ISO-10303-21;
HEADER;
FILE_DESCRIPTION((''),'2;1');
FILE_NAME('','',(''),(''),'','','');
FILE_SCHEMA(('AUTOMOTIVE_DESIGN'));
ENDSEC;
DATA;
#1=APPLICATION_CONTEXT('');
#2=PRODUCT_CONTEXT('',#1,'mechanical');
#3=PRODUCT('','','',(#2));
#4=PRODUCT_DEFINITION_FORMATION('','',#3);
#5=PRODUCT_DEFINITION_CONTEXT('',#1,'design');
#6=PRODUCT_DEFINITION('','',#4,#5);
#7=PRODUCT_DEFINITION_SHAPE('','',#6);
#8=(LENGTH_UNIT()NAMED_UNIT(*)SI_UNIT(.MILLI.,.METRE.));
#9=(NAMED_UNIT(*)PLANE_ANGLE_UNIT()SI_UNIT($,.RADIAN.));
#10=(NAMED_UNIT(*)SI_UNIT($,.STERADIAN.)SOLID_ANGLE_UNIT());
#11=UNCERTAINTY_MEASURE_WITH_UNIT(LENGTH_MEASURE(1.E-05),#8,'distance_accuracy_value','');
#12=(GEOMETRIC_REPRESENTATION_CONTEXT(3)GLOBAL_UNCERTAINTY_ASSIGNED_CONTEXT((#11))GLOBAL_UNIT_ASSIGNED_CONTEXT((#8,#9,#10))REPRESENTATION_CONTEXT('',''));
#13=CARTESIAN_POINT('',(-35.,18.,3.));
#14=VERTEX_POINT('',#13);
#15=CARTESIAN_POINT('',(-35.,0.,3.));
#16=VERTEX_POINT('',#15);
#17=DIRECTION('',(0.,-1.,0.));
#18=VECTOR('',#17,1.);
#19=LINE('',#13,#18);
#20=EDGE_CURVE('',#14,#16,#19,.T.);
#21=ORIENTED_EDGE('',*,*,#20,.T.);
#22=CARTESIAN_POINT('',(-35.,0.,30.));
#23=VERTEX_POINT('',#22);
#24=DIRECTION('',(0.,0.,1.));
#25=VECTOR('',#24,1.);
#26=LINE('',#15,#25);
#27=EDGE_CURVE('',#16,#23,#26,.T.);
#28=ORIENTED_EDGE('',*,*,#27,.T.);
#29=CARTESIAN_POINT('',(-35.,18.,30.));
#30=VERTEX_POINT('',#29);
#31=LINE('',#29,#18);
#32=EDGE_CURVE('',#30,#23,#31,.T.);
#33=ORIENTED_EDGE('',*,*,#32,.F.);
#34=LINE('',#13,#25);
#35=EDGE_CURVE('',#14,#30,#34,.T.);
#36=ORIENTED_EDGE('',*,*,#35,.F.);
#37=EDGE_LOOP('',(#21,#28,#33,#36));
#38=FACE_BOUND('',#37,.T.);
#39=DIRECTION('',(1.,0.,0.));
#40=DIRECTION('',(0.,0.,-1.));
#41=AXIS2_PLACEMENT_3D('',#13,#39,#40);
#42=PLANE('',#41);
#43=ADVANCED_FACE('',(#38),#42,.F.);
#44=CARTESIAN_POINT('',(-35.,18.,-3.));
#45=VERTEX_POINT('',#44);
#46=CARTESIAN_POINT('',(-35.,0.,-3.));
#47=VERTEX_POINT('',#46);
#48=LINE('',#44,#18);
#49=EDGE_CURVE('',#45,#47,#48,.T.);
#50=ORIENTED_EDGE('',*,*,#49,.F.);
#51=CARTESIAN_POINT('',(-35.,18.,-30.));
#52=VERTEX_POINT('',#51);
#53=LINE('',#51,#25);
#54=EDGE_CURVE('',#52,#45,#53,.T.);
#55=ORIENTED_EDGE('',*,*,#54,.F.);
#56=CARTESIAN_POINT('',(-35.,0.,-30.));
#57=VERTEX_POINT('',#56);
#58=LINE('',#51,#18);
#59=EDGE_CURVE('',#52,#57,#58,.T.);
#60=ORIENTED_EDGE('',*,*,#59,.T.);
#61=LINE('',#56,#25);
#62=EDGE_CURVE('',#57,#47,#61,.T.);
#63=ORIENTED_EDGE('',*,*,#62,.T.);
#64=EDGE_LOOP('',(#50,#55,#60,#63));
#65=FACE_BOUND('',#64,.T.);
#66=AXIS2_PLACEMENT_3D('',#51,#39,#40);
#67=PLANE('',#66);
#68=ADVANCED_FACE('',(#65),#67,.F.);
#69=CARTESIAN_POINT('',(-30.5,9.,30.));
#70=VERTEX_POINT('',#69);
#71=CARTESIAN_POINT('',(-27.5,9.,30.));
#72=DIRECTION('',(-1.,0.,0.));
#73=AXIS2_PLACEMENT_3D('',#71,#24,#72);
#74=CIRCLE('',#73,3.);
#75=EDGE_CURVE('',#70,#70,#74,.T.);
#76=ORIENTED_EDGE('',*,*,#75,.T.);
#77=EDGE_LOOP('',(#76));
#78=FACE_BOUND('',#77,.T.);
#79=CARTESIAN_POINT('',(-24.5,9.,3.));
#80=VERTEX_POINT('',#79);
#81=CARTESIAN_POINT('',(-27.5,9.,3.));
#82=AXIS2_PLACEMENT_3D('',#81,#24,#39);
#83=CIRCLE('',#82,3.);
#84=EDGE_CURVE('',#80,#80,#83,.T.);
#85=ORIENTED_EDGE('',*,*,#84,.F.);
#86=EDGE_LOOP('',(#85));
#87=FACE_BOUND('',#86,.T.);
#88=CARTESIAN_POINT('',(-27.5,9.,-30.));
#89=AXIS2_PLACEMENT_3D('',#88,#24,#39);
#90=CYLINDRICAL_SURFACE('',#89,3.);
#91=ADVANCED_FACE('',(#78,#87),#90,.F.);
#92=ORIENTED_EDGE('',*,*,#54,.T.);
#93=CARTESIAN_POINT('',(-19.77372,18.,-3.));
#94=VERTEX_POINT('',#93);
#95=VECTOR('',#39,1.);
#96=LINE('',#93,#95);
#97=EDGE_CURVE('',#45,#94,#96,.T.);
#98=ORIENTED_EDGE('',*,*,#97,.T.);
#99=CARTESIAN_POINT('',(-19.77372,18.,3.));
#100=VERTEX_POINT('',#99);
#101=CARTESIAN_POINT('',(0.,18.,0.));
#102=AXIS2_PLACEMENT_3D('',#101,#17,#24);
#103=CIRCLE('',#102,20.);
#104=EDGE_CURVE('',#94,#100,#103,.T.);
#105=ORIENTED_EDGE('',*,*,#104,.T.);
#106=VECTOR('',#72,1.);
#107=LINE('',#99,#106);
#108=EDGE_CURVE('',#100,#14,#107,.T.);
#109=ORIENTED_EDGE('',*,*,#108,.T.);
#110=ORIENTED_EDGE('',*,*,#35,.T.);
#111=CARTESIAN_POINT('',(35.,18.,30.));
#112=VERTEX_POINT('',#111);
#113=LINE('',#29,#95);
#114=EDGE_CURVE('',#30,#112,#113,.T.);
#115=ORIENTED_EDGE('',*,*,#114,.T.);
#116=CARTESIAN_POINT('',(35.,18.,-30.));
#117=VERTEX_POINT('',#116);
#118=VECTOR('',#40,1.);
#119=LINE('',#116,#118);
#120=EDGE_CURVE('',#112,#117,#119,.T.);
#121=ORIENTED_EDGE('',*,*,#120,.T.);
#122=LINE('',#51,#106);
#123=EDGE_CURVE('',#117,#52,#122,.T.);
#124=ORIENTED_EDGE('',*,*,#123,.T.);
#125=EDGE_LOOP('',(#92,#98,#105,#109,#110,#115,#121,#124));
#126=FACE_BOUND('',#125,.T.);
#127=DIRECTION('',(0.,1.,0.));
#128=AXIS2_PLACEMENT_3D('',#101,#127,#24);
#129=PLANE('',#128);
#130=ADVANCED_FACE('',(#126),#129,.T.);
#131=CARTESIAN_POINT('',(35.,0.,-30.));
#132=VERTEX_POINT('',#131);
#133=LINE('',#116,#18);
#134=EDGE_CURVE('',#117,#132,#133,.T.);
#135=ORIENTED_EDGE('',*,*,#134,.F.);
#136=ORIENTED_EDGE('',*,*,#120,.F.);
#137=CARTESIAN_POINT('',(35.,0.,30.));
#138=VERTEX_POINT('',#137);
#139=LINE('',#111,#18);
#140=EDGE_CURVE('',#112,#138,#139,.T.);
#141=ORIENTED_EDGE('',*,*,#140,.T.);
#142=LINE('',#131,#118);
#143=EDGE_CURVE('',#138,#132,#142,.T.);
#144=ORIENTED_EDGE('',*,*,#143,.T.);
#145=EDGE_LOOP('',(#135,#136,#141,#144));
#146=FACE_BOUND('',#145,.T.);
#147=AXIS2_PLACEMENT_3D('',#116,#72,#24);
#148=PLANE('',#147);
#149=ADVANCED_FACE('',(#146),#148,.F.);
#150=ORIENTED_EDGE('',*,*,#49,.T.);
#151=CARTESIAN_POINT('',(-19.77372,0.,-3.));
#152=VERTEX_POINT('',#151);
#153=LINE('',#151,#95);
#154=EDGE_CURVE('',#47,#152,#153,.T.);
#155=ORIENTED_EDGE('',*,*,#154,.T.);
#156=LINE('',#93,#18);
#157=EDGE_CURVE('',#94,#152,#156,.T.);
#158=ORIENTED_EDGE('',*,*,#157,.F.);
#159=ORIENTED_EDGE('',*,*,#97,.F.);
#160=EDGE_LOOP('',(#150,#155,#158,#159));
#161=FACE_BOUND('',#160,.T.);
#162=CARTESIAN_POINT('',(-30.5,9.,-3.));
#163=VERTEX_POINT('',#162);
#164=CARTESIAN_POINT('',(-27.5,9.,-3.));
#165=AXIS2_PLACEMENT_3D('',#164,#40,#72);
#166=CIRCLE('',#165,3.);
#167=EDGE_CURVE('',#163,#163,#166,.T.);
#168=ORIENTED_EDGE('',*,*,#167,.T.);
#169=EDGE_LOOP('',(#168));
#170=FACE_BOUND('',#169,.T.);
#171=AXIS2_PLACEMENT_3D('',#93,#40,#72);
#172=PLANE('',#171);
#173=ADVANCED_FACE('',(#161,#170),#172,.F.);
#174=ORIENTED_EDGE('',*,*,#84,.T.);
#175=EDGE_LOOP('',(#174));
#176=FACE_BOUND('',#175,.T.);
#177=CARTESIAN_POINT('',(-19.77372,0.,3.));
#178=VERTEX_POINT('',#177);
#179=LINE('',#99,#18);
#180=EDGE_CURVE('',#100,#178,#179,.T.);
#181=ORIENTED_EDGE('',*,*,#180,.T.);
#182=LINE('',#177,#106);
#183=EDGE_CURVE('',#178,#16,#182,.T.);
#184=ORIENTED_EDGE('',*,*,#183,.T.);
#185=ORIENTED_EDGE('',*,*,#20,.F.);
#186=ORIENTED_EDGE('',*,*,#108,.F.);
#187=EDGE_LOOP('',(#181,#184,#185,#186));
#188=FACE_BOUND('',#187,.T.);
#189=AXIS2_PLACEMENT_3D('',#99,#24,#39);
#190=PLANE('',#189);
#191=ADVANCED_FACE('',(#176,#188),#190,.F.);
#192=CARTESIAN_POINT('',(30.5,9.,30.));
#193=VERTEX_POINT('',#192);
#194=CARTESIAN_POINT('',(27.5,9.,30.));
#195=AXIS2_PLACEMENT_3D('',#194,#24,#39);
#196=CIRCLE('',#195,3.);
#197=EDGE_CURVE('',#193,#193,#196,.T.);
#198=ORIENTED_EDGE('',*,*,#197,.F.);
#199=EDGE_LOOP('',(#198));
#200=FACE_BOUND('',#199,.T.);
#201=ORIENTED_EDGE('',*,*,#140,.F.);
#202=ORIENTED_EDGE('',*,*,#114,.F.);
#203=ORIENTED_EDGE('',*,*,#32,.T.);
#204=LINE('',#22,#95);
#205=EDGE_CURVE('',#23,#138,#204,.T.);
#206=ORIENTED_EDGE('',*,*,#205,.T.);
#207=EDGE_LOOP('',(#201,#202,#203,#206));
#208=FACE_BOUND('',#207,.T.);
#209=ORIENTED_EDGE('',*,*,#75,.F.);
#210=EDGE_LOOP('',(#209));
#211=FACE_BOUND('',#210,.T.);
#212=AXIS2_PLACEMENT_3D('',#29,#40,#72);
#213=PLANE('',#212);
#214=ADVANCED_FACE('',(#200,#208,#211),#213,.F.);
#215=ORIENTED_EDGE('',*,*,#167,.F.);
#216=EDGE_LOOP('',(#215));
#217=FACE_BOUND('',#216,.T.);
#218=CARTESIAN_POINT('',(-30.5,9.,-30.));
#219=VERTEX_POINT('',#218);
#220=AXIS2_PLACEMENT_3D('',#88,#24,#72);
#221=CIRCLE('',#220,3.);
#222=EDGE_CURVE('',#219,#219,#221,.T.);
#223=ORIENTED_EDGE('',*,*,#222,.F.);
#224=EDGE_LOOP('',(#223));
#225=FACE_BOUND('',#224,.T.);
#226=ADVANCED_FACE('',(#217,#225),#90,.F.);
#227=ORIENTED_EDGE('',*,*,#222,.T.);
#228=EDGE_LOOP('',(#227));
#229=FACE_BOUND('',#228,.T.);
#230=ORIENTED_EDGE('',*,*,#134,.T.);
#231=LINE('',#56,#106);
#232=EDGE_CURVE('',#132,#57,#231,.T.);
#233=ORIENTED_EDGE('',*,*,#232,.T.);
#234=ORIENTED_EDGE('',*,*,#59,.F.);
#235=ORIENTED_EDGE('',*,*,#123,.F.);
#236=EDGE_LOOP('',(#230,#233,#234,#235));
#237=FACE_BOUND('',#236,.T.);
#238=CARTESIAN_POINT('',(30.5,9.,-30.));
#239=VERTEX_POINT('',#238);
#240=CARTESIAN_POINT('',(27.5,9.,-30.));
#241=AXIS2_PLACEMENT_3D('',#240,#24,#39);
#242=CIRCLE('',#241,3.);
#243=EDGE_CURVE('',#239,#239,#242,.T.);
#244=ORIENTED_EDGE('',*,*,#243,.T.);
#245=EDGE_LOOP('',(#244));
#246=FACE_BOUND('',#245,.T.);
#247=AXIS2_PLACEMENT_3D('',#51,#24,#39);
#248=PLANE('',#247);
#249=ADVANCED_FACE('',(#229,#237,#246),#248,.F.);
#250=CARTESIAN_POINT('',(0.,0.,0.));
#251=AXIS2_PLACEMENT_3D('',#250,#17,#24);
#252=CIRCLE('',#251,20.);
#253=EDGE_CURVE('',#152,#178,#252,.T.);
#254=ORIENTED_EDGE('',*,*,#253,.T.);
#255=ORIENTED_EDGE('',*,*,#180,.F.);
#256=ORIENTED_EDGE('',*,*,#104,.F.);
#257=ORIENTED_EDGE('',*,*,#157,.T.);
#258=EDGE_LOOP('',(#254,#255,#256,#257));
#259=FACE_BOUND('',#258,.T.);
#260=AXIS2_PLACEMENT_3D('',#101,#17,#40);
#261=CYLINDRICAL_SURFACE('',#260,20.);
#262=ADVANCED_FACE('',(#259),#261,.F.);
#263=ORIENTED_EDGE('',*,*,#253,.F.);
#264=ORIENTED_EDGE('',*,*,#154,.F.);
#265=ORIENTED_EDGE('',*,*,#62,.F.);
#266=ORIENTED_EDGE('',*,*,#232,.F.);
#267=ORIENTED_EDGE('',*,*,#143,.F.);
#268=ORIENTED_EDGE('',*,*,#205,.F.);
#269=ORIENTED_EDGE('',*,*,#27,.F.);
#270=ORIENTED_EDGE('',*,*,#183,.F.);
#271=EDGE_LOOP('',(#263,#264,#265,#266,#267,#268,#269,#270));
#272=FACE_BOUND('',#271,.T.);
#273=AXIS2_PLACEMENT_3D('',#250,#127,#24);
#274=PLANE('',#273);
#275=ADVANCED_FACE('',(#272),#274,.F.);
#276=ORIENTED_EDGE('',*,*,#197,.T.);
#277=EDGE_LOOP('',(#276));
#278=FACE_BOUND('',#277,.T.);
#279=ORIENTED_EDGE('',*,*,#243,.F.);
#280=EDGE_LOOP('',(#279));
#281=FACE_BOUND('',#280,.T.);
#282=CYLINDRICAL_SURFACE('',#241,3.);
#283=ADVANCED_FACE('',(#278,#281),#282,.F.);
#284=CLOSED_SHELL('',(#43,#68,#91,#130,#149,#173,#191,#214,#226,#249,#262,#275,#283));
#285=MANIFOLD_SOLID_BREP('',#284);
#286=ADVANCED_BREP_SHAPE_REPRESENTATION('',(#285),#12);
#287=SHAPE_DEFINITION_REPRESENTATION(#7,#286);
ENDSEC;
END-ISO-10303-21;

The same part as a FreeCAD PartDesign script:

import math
import FreeCAD as App
import Part
import Sketcher

doc = App.newDocument("Part")
body = doc.addObject("PartDesign::Body", "Body")

# Sketch on XZ plane
sketch1 = doc.addObject("Sketcher::SketchObject", "Sketch")
body.addObject(sketch1)
sketch1.AttachmentSupport = (doc.XZ_Plane, [""])
sketch1.MapMode = "FlatFace"
sketch1.addGeometry([
    Part.LineSegment(App.Vector(35, -30, 0), App.Vector(-35, -30, 0)),  # 0
    Part.LineSegment(App.Vector(-35, -30, 0), App.Vector(-35, -3, 0)),  # 1
    Part.LineSegment(App.Vector(-35, -3, 0), App.Vector(-19.77372, -3, 0)),  # 2
    Part.ArcOfCircle(Part.Circle(App.Vector(0, 0, 0), App.Vector(0, 0, 1), 20), math.radians(-171.373073), math.radians(171.373073)),  # 3
    Part.LineSegment(App.Vector(-19.77372, 3, 0), App.Vector(-35, 3, 0)),  # 4
    Part.LineSegment(App.Vector(-35, 3, 0), App.Vector(-35, 30, 0)),  # 5
    Part.LineSegment(App.Vector(-35, 30, 0), App.Vector(35, 30, 0)),  # 6
    Part.LineSegment(App.Vector(35, 30, 0), App.Vector(35, -30, 0)),  # 7
], False)
sketch1.addConstraint([
    Sketcher.Constraint("Coincident", 0, 2, 1, 1),
    Sketcher.Constraint("Coincident", 1, 2, 2, 1),
    Sketcher.Constraint("Coincident", 2, 2, 3, 1),
    Sketcher.Constraint("Coincident", 3, 2, 4, 1),
    Sketcher.Constraint("Coincident", 4, 2, 5, 1),
    Sketcher.Constraint("Coincident", 5, 2, 6, 1),
    Sketcher.Constraint("Coincident", 6, 2, 7, 1),
    Sketcher.Constraint("Coincident", 7, 2, 0, 1),
    Sketcher.Constraint("Horizontal", 0),
    Sketcher.Constraint("Vertical", 1),
    Sketcher.Constraint("Horizontal", 2),
    Sketcher.Constraint("Horizontal", 4),
    Sketcher.Constraint("Vertical", 5),
    Sketcher.Constraint("Horizontal", 6),
    Sketcher.Constraint("Vertical", 7),
    Sketcher.Constraint("Coincident", 3, 3, -1, 1),
    Sketcher.Constraint("Symmetric", 0, 2, 6, 2, -1, 1),
    Sketcher.Constraint("Symmetric", 1, 2, 4, 2, -1),
    Sketcher.Constraint("Radius", 3, 20.0),
    Sketcher.Constraint("DistanceX", 0, 2, 0, 1, 70.0),
    Sketcher.Constraint("DistanceY", 1, 1, 1, 2, 27.0),
    Sketcher.Constraint("DistanceY", 7, 2, 7, 1, 60.0),
])
pad1 = doc.addObject("PartDesign::Pad", "Pad")
body.addObject(pad1)
pad1.Profile = sketch1
pad1.Length = 18
pad1.Reversed = True

# Sketch on XY plane
sketch2 = doc.addObject("Sketcher::SketchObject", "Sketch001")
body.addObject(sketch2)
sketch2.AttachmentSupport = (doc.XY_Plane, [""])
sketch2.MapMode = "FlatFace"
sketch2.AttachmentOffset = App.Placement(App.Vector(0, 0, 30), App.Rotation())
sketch2.addGeometry([
    Part.Circle(App.Vector(27.5, 9, 0), App.Vector(0, 0, 1), 3),
    Part.Circle(App.Vector(-27.5, 9, 0), App.Vector(0, 0, 1), 3),
], False)
sketch2.addConstraint([
    Sketcher.Constraint("Equal", 0, 1),
    Sketcher.Constraint("Symmetric", 0, 3, 1, 3, -2),
    Sketcher.Constraint("Diameter", 0, 6.0),
    Sketcher.Constraint("DistanceY", -1, 1, 0, 3, 9.0),
    Sketcher.Constraint("DistanceX", 1, 3, 0, 3, 55.0),
])
pocket1 = doc.addObject("PartDesign::Pocket", "Pocket")
body.addObject(pocket1)
pocket1.Profile = sketch2
pocket1.Type = "ThroughAll"

doc.recompute()
